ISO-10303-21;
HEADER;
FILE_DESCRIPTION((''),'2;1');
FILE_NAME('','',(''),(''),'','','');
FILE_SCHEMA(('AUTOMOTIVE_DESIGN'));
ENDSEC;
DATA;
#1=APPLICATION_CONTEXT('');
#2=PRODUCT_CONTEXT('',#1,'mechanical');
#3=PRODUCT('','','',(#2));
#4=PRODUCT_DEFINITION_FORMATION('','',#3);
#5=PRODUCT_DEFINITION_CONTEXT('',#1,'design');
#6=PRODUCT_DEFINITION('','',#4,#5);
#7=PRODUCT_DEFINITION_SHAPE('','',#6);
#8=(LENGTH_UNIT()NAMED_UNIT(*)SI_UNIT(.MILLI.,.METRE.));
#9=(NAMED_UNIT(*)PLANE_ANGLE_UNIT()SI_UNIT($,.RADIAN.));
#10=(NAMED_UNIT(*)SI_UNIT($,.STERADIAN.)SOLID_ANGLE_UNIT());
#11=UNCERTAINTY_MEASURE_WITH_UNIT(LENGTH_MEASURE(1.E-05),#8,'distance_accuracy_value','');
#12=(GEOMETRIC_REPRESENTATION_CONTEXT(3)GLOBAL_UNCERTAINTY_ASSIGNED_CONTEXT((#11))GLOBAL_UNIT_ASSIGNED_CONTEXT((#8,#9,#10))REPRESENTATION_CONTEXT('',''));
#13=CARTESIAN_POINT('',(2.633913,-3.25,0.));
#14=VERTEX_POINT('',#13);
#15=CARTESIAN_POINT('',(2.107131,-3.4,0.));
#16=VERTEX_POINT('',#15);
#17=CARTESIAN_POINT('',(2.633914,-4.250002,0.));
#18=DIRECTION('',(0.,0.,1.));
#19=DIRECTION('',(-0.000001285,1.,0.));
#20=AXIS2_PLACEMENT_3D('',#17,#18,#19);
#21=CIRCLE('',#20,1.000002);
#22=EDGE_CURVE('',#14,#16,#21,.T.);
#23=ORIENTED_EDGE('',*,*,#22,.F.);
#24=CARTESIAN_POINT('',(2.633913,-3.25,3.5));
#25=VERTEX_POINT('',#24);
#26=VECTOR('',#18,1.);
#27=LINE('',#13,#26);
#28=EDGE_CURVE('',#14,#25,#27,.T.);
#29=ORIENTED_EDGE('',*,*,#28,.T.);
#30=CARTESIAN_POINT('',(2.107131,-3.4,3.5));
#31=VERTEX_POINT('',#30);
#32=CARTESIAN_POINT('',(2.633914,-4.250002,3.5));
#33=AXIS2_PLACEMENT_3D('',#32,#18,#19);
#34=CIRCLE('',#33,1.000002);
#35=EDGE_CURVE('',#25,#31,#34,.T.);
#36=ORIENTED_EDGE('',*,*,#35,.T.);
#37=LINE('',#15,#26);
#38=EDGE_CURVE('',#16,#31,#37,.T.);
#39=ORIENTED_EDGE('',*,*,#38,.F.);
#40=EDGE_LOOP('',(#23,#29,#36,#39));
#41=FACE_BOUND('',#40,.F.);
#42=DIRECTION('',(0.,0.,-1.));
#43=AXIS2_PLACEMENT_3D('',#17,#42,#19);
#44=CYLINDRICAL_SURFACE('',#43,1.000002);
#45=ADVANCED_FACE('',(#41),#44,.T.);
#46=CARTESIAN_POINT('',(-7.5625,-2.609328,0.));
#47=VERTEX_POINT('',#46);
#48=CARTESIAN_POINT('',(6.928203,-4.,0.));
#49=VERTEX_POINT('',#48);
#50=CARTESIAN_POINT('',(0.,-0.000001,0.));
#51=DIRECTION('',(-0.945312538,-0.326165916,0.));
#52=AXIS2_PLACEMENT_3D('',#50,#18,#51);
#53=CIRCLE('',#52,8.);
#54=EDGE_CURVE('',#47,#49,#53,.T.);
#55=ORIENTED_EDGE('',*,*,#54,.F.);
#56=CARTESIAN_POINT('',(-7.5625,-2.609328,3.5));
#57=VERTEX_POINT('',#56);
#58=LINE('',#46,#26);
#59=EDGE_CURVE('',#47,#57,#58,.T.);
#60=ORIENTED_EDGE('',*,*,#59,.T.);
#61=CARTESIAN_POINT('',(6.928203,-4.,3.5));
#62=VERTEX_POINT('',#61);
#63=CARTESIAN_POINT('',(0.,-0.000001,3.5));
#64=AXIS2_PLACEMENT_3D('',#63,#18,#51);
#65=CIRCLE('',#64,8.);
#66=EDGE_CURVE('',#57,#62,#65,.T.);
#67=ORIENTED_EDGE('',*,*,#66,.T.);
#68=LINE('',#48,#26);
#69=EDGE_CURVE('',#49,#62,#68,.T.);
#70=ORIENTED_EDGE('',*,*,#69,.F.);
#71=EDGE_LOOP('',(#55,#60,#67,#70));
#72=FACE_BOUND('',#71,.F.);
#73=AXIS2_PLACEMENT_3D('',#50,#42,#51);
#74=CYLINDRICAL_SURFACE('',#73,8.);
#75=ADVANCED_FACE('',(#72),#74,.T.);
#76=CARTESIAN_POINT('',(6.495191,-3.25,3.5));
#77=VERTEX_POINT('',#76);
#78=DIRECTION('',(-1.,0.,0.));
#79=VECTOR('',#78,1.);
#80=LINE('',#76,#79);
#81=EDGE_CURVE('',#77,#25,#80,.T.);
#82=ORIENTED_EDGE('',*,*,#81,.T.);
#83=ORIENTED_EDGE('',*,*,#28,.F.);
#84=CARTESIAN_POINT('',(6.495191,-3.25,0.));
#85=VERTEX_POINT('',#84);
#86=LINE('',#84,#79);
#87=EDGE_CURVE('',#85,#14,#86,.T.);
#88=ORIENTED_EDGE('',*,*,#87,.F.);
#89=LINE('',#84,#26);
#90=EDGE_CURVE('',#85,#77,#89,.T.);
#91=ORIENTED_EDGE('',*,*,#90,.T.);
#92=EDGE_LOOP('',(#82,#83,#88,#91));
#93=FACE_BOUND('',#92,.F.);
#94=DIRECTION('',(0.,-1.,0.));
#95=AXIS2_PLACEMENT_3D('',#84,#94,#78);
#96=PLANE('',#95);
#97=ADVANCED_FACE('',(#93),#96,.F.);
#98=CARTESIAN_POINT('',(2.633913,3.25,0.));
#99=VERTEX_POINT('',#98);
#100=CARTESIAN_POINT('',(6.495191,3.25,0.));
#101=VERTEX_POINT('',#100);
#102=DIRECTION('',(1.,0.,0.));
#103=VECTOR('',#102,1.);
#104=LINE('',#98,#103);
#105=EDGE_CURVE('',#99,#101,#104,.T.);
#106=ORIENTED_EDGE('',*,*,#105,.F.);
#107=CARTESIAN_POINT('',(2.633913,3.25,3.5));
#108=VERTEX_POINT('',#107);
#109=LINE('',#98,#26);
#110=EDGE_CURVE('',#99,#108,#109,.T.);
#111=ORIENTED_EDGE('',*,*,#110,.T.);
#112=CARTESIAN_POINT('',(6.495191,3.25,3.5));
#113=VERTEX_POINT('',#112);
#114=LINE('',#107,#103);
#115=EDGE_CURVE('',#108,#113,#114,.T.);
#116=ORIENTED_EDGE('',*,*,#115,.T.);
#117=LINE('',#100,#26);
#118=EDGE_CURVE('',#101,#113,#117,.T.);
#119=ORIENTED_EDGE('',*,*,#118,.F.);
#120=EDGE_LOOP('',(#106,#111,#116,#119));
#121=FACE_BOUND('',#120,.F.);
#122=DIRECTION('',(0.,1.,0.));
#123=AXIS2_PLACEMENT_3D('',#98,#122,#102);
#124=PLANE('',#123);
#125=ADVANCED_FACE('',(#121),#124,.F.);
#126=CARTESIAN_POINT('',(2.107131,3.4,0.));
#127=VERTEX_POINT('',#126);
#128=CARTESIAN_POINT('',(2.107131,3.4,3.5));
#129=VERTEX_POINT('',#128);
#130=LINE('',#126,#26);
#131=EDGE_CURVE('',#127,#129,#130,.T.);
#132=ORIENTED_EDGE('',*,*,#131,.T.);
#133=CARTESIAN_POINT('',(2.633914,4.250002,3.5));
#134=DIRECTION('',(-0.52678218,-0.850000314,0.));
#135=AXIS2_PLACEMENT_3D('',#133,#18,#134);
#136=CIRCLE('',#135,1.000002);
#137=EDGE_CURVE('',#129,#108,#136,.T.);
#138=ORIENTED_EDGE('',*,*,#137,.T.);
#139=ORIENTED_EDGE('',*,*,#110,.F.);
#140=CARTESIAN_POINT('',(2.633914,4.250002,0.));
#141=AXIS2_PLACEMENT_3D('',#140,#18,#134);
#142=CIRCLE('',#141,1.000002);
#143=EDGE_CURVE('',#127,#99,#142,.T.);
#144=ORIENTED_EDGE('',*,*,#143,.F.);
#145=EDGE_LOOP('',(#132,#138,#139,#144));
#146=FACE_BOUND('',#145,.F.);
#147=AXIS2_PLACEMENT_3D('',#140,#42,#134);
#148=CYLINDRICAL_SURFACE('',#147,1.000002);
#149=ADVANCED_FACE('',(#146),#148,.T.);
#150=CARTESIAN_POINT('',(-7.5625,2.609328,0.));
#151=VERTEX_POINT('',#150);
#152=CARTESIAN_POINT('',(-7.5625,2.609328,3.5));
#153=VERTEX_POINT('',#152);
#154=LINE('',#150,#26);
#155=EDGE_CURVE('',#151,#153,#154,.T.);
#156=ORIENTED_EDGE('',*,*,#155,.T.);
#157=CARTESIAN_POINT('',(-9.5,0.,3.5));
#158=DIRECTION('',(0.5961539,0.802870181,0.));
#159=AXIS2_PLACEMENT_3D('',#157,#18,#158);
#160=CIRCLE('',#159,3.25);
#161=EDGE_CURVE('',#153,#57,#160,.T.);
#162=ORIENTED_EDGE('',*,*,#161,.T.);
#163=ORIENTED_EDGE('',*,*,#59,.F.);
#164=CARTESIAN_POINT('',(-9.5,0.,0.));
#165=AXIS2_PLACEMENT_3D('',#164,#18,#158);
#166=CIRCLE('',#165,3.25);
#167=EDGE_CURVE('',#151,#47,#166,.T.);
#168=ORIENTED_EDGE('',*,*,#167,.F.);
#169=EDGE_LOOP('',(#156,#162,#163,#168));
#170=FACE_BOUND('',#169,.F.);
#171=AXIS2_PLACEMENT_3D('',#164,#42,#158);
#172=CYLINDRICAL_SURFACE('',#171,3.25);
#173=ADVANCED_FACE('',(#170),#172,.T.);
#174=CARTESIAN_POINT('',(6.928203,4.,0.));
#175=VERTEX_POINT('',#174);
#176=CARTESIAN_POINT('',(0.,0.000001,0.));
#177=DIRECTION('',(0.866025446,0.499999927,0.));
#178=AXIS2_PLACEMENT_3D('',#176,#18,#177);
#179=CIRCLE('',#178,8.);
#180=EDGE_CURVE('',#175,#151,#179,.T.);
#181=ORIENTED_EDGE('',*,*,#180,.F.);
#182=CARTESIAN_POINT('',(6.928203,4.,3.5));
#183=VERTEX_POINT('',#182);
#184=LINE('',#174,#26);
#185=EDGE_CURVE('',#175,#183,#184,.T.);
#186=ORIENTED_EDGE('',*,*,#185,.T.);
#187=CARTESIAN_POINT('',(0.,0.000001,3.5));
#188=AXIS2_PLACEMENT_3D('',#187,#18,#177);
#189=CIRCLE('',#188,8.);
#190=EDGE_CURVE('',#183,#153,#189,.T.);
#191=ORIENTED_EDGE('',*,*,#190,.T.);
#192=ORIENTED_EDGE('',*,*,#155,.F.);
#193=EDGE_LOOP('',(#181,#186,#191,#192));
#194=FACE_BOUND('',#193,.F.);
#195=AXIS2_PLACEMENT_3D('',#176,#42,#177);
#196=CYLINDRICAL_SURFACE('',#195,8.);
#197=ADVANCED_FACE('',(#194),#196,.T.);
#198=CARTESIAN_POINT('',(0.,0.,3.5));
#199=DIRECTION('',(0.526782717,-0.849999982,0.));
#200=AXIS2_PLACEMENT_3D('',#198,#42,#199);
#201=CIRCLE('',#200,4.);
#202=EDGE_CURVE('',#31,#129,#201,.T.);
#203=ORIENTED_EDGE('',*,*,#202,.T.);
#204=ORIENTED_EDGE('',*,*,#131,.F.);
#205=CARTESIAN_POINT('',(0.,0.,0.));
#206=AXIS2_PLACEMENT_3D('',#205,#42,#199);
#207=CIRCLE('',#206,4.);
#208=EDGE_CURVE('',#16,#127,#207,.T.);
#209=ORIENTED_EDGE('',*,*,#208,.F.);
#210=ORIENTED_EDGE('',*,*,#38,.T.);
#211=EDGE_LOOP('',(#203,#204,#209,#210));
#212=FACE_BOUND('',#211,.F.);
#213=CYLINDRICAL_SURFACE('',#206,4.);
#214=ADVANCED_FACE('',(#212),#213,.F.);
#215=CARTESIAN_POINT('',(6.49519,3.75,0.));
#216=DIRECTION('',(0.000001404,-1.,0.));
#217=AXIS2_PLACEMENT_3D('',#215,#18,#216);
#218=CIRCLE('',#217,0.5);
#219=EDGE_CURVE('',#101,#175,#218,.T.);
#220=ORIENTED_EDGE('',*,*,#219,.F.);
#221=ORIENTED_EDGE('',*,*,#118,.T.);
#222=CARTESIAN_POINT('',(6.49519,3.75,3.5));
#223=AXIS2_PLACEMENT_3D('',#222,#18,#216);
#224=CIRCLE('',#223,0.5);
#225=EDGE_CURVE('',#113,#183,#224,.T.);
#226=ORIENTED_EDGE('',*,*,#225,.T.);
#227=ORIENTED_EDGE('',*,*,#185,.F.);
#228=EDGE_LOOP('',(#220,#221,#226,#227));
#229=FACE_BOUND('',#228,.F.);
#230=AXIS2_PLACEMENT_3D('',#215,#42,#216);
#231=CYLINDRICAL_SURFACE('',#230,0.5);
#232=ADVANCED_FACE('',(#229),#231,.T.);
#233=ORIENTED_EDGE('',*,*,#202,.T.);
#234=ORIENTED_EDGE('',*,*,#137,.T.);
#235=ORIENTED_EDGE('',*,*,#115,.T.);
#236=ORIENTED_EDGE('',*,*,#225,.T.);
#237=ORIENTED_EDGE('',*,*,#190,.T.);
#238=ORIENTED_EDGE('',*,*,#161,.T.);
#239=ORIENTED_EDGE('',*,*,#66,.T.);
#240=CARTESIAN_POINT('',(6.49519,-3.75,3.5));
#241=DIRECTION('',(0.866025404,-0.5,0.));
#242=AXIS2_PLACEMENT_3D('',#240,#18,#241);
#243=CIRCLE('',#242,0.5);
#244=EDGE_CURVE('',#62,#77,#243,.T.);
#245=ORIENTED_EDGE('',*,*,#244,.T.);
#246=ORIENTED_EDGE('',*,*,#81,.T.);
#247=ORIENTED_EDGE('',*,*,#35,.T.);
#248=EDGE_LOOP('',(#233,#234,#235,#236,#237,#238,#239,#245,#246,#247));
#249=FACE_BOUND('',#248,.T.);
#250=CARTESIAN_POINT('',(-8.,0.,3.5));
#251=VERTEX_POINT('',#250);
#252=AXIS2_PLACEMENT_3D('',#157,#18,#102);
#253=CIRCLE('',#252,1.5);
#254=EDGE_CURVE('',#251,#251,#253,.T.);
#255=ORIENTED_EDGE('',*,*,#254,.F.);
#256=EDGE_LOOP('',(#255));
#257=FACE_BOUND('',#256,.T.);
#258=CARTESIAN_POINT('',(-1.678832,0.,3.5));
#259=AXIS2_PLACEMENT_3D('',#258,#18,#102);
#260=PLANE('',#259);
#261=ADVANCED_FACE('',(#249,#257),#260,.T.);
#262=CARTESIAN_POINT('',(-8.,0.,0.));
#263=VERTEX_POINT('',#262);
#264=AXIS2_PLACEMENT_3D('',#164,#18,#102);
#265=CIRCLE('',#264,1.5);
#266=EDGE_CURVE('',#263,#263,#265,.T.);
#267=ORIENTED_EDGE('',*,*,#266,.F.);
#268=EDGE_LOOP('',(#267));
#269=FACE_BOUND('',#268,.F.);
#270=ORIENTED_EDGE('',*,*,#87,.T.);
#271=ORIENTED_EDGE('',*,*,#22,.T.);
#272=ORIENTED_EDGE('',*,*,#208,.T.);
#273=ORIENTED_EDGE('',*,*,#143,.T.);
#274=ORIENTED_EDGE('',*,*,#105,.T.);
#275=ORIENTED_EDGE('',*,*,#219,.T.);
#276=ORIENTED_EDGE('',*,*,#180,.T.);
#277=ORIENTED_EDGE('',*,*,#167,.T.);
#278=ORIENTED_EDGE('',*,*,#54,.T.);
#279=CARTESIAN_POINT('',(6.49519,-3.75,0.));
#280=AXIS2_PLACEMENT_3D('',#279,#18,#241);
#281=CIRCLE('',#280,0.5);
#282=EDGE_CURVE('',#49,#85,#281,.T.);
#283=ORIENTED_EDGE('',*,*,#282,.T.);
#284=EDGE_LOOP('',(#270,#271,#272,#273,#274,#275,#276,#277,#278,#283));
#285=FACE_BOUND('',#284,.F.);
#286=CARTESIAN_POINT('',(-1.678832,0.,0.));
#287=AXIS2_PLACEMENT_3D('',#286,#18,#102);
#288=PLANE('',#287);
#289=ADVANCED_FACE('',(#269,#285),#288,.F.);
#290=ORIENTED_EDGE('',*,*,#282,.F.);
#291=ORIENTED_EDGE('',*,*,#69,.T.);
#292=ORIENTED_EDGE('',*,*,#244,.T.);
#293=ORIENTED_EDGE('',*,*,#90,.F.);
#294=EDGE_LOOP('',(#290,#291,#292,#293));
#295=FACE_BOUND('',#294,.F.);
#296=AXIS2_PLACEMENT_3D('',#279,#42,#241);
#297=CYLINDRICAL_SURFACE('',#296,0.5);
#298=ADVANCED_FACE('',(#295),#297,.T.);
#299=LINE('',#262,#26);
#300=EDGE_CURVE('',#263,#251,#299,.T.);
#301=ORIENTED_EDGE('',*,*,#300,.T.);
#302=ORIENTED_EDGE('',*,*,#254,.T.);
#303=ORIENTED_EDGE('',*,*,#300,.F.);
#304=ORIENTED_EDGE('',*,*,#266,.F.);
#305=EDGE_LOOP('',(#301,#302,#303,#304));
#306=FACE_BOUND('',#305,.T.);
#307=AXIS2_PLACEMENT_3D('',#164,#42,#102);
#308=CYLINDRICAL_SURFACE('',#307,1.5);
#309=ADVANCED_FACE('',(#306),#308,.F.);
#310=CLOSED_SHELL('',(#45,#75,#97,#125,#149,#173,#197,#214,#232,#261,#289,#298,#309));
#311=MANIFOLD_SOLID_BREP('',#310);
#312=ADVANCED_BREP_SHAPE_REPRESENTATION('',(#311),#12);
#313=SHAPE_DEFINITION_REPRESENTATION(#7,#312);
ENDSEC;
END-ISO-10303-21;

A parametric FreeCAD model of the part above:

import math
import FreeCAD as App
import Part
import Sketcher
Q = App.Units.Quantity

doc = App.newDocument("Part")
body = doc.addObject("PartDesign::Body", "Body")

# Sketch on XY plane
sketch1 = body.newObject("Sketcher::SketchObject", "Sketch")
sketch1.AttachmentSupport = (doc.getObject("XY_Plane"), [""])
sketch1.MapMode = "FlatFace"
sketch1.addGeometry([
    Part.ArcOfCircle(Part.Circle(App.Vector(0, 0, 0), App.Vector(0, 0, 1), 4), math.radians(58.211667), math.radians(301.788333)),  # 0
    Part.ArcOfCircle(Part.Circle(App.Vector(2.633914, 4.250002, 0), App.Vector(0, 0, 1), 1.000002), math.radians(-121.788296), math.radians(-90.000074)),  # 1
    Part.LineSegment(App.Vector(2.633913, 3.25, 0), App.Vector(6.495191, 3.25, 0)),  # 2
    Part.ArcOfCircle(Part.Circle(App.Vector(6.49519, 3.75, 0), App.Vector(0, 0, 1), 0.5), math.radians(-89.99992), math.radians(30)),  # 3
    Part.ArcOfCircle(Part.Circle(App.Vector(0, 0.000001, 0), App.Vector(0, 0, 1), 8), math.radians(29.999995), math.radians(160.963773)),  # 4
    Part.ArcOfCircle(Part.Circle(App.Vector(-9.5, 0, 0), App.Vector(0, 0, 1), 3.25), math.radians(53.405065), math.radians(306.594935)),  # 5
    Part.ArcOfCircle(Part.Circle(App.Vector(0, -0.000001, 0), App.Vector(0, 0, 1), 8), math.radians(-160.963773), math.radians(-29.999995)),  # 6
    Part.ArcOfCircle(Part.Circle(App.Vector(6.49519, -3.75, 0), App.Vector(0, 0, 1), 0.5), math.radians(-30), math.radians(89.99992)),  # 7
    Part.LineSegment(App.Vector(6.495191, -3.25, 0), App.Vector(2.633913, -3.25, 0)),  # 8
    Part.ArcOfCircle(Part.Circle(App.Vector(2.633914, -4.250002, 0), App.Vector(0, 0, 1), 1.000002), math.radians(90.000074), math.radians(121.788296)),  # 9
    Part.Circle(App.Vector(-9.5, 0, 0), App.Vector(0, 0, 1), 1.5),  # 10
], False)
sketch1.addConstraint([
    Sketcher.Constraint("Tangent", 0, 1, 1, 1),
    Sketcher.Constraint("Tangent", 1, 2, 2, 1),
    Sketcher.Constraint("Tangent", 2, 2, 3, 1),
    Sketcher.Constraint("Tangent", 3, 2, 4, 1),
    Sketcher.Constraint("Coincident", 4, 2, 5, 1),
    Sketcher.Constraint("Coincident", 5, 2, 6, 1),
    Sketcher.Constraint("Tangent", 6, 2, 7, 1),
    Sketcher.Constraint("Tangent", 7, 2, 8, 1),
    Sketcher.Constraint("Tangent", 8, 2, 9, 1),
    Sketcher.Constraint("Tangent", 9, 2, 0, 2),
    Sketcher.Constraint("Horizontal", 2),
    Sketcher.Constraint("Horizontal", 8),
    Sketcher.Constraint("Coincident", 0, 3, -1, 1),
    Sketcher.Constraint("Coincident", 4, 3, -1, 1),
    Sketcher.Constraint("Coincident", 6, 3, -1, 1),
    Sketcher.Constraint("Coincident", 10, 3, 5, 3),
    Sketcher.Constraint("Equal", 4, 6),
    Sketcher.Constraint("Equal", 3, 7),
    Sketcher.Constraint("Equal", 1, 9),
    Sketcher.Constraint("PointOnObject", 5, 3, -1),
    Sketcher.Constraint("Vertical", 3, 3, 7, 3),
    Sketcher.Constraint("Diameter", 10, Q("3 mm")),
    Sketcher.Constraint("Radius", 0, Q("4 mm")),
    Sketcher.Constraint("Radius", 4, Q("8 mm")),
    Sketcher.Constraint("Radius", 3, Q("0.5 mm")),
    Sketcher.Constraint("Radius", 5, Q("3.25 mm")),
    Sketcher.Constraint("DistanceY", -1, 1, 3, 2, Q("4 mm")),
    Sketcher.Constraint("DistanceX", 5, 3, -1, 1, Q("9.5 mm")),
    Sketcher.Constraint("DistanceY", -1, 1, 0, 1, Q("3.4 mm")),
])
pad1 = body.newObject("PartDesign::Pad", "Pad")
pad1.Profile = sketch1
pad1.Length = 3.5

doc.recompute()
